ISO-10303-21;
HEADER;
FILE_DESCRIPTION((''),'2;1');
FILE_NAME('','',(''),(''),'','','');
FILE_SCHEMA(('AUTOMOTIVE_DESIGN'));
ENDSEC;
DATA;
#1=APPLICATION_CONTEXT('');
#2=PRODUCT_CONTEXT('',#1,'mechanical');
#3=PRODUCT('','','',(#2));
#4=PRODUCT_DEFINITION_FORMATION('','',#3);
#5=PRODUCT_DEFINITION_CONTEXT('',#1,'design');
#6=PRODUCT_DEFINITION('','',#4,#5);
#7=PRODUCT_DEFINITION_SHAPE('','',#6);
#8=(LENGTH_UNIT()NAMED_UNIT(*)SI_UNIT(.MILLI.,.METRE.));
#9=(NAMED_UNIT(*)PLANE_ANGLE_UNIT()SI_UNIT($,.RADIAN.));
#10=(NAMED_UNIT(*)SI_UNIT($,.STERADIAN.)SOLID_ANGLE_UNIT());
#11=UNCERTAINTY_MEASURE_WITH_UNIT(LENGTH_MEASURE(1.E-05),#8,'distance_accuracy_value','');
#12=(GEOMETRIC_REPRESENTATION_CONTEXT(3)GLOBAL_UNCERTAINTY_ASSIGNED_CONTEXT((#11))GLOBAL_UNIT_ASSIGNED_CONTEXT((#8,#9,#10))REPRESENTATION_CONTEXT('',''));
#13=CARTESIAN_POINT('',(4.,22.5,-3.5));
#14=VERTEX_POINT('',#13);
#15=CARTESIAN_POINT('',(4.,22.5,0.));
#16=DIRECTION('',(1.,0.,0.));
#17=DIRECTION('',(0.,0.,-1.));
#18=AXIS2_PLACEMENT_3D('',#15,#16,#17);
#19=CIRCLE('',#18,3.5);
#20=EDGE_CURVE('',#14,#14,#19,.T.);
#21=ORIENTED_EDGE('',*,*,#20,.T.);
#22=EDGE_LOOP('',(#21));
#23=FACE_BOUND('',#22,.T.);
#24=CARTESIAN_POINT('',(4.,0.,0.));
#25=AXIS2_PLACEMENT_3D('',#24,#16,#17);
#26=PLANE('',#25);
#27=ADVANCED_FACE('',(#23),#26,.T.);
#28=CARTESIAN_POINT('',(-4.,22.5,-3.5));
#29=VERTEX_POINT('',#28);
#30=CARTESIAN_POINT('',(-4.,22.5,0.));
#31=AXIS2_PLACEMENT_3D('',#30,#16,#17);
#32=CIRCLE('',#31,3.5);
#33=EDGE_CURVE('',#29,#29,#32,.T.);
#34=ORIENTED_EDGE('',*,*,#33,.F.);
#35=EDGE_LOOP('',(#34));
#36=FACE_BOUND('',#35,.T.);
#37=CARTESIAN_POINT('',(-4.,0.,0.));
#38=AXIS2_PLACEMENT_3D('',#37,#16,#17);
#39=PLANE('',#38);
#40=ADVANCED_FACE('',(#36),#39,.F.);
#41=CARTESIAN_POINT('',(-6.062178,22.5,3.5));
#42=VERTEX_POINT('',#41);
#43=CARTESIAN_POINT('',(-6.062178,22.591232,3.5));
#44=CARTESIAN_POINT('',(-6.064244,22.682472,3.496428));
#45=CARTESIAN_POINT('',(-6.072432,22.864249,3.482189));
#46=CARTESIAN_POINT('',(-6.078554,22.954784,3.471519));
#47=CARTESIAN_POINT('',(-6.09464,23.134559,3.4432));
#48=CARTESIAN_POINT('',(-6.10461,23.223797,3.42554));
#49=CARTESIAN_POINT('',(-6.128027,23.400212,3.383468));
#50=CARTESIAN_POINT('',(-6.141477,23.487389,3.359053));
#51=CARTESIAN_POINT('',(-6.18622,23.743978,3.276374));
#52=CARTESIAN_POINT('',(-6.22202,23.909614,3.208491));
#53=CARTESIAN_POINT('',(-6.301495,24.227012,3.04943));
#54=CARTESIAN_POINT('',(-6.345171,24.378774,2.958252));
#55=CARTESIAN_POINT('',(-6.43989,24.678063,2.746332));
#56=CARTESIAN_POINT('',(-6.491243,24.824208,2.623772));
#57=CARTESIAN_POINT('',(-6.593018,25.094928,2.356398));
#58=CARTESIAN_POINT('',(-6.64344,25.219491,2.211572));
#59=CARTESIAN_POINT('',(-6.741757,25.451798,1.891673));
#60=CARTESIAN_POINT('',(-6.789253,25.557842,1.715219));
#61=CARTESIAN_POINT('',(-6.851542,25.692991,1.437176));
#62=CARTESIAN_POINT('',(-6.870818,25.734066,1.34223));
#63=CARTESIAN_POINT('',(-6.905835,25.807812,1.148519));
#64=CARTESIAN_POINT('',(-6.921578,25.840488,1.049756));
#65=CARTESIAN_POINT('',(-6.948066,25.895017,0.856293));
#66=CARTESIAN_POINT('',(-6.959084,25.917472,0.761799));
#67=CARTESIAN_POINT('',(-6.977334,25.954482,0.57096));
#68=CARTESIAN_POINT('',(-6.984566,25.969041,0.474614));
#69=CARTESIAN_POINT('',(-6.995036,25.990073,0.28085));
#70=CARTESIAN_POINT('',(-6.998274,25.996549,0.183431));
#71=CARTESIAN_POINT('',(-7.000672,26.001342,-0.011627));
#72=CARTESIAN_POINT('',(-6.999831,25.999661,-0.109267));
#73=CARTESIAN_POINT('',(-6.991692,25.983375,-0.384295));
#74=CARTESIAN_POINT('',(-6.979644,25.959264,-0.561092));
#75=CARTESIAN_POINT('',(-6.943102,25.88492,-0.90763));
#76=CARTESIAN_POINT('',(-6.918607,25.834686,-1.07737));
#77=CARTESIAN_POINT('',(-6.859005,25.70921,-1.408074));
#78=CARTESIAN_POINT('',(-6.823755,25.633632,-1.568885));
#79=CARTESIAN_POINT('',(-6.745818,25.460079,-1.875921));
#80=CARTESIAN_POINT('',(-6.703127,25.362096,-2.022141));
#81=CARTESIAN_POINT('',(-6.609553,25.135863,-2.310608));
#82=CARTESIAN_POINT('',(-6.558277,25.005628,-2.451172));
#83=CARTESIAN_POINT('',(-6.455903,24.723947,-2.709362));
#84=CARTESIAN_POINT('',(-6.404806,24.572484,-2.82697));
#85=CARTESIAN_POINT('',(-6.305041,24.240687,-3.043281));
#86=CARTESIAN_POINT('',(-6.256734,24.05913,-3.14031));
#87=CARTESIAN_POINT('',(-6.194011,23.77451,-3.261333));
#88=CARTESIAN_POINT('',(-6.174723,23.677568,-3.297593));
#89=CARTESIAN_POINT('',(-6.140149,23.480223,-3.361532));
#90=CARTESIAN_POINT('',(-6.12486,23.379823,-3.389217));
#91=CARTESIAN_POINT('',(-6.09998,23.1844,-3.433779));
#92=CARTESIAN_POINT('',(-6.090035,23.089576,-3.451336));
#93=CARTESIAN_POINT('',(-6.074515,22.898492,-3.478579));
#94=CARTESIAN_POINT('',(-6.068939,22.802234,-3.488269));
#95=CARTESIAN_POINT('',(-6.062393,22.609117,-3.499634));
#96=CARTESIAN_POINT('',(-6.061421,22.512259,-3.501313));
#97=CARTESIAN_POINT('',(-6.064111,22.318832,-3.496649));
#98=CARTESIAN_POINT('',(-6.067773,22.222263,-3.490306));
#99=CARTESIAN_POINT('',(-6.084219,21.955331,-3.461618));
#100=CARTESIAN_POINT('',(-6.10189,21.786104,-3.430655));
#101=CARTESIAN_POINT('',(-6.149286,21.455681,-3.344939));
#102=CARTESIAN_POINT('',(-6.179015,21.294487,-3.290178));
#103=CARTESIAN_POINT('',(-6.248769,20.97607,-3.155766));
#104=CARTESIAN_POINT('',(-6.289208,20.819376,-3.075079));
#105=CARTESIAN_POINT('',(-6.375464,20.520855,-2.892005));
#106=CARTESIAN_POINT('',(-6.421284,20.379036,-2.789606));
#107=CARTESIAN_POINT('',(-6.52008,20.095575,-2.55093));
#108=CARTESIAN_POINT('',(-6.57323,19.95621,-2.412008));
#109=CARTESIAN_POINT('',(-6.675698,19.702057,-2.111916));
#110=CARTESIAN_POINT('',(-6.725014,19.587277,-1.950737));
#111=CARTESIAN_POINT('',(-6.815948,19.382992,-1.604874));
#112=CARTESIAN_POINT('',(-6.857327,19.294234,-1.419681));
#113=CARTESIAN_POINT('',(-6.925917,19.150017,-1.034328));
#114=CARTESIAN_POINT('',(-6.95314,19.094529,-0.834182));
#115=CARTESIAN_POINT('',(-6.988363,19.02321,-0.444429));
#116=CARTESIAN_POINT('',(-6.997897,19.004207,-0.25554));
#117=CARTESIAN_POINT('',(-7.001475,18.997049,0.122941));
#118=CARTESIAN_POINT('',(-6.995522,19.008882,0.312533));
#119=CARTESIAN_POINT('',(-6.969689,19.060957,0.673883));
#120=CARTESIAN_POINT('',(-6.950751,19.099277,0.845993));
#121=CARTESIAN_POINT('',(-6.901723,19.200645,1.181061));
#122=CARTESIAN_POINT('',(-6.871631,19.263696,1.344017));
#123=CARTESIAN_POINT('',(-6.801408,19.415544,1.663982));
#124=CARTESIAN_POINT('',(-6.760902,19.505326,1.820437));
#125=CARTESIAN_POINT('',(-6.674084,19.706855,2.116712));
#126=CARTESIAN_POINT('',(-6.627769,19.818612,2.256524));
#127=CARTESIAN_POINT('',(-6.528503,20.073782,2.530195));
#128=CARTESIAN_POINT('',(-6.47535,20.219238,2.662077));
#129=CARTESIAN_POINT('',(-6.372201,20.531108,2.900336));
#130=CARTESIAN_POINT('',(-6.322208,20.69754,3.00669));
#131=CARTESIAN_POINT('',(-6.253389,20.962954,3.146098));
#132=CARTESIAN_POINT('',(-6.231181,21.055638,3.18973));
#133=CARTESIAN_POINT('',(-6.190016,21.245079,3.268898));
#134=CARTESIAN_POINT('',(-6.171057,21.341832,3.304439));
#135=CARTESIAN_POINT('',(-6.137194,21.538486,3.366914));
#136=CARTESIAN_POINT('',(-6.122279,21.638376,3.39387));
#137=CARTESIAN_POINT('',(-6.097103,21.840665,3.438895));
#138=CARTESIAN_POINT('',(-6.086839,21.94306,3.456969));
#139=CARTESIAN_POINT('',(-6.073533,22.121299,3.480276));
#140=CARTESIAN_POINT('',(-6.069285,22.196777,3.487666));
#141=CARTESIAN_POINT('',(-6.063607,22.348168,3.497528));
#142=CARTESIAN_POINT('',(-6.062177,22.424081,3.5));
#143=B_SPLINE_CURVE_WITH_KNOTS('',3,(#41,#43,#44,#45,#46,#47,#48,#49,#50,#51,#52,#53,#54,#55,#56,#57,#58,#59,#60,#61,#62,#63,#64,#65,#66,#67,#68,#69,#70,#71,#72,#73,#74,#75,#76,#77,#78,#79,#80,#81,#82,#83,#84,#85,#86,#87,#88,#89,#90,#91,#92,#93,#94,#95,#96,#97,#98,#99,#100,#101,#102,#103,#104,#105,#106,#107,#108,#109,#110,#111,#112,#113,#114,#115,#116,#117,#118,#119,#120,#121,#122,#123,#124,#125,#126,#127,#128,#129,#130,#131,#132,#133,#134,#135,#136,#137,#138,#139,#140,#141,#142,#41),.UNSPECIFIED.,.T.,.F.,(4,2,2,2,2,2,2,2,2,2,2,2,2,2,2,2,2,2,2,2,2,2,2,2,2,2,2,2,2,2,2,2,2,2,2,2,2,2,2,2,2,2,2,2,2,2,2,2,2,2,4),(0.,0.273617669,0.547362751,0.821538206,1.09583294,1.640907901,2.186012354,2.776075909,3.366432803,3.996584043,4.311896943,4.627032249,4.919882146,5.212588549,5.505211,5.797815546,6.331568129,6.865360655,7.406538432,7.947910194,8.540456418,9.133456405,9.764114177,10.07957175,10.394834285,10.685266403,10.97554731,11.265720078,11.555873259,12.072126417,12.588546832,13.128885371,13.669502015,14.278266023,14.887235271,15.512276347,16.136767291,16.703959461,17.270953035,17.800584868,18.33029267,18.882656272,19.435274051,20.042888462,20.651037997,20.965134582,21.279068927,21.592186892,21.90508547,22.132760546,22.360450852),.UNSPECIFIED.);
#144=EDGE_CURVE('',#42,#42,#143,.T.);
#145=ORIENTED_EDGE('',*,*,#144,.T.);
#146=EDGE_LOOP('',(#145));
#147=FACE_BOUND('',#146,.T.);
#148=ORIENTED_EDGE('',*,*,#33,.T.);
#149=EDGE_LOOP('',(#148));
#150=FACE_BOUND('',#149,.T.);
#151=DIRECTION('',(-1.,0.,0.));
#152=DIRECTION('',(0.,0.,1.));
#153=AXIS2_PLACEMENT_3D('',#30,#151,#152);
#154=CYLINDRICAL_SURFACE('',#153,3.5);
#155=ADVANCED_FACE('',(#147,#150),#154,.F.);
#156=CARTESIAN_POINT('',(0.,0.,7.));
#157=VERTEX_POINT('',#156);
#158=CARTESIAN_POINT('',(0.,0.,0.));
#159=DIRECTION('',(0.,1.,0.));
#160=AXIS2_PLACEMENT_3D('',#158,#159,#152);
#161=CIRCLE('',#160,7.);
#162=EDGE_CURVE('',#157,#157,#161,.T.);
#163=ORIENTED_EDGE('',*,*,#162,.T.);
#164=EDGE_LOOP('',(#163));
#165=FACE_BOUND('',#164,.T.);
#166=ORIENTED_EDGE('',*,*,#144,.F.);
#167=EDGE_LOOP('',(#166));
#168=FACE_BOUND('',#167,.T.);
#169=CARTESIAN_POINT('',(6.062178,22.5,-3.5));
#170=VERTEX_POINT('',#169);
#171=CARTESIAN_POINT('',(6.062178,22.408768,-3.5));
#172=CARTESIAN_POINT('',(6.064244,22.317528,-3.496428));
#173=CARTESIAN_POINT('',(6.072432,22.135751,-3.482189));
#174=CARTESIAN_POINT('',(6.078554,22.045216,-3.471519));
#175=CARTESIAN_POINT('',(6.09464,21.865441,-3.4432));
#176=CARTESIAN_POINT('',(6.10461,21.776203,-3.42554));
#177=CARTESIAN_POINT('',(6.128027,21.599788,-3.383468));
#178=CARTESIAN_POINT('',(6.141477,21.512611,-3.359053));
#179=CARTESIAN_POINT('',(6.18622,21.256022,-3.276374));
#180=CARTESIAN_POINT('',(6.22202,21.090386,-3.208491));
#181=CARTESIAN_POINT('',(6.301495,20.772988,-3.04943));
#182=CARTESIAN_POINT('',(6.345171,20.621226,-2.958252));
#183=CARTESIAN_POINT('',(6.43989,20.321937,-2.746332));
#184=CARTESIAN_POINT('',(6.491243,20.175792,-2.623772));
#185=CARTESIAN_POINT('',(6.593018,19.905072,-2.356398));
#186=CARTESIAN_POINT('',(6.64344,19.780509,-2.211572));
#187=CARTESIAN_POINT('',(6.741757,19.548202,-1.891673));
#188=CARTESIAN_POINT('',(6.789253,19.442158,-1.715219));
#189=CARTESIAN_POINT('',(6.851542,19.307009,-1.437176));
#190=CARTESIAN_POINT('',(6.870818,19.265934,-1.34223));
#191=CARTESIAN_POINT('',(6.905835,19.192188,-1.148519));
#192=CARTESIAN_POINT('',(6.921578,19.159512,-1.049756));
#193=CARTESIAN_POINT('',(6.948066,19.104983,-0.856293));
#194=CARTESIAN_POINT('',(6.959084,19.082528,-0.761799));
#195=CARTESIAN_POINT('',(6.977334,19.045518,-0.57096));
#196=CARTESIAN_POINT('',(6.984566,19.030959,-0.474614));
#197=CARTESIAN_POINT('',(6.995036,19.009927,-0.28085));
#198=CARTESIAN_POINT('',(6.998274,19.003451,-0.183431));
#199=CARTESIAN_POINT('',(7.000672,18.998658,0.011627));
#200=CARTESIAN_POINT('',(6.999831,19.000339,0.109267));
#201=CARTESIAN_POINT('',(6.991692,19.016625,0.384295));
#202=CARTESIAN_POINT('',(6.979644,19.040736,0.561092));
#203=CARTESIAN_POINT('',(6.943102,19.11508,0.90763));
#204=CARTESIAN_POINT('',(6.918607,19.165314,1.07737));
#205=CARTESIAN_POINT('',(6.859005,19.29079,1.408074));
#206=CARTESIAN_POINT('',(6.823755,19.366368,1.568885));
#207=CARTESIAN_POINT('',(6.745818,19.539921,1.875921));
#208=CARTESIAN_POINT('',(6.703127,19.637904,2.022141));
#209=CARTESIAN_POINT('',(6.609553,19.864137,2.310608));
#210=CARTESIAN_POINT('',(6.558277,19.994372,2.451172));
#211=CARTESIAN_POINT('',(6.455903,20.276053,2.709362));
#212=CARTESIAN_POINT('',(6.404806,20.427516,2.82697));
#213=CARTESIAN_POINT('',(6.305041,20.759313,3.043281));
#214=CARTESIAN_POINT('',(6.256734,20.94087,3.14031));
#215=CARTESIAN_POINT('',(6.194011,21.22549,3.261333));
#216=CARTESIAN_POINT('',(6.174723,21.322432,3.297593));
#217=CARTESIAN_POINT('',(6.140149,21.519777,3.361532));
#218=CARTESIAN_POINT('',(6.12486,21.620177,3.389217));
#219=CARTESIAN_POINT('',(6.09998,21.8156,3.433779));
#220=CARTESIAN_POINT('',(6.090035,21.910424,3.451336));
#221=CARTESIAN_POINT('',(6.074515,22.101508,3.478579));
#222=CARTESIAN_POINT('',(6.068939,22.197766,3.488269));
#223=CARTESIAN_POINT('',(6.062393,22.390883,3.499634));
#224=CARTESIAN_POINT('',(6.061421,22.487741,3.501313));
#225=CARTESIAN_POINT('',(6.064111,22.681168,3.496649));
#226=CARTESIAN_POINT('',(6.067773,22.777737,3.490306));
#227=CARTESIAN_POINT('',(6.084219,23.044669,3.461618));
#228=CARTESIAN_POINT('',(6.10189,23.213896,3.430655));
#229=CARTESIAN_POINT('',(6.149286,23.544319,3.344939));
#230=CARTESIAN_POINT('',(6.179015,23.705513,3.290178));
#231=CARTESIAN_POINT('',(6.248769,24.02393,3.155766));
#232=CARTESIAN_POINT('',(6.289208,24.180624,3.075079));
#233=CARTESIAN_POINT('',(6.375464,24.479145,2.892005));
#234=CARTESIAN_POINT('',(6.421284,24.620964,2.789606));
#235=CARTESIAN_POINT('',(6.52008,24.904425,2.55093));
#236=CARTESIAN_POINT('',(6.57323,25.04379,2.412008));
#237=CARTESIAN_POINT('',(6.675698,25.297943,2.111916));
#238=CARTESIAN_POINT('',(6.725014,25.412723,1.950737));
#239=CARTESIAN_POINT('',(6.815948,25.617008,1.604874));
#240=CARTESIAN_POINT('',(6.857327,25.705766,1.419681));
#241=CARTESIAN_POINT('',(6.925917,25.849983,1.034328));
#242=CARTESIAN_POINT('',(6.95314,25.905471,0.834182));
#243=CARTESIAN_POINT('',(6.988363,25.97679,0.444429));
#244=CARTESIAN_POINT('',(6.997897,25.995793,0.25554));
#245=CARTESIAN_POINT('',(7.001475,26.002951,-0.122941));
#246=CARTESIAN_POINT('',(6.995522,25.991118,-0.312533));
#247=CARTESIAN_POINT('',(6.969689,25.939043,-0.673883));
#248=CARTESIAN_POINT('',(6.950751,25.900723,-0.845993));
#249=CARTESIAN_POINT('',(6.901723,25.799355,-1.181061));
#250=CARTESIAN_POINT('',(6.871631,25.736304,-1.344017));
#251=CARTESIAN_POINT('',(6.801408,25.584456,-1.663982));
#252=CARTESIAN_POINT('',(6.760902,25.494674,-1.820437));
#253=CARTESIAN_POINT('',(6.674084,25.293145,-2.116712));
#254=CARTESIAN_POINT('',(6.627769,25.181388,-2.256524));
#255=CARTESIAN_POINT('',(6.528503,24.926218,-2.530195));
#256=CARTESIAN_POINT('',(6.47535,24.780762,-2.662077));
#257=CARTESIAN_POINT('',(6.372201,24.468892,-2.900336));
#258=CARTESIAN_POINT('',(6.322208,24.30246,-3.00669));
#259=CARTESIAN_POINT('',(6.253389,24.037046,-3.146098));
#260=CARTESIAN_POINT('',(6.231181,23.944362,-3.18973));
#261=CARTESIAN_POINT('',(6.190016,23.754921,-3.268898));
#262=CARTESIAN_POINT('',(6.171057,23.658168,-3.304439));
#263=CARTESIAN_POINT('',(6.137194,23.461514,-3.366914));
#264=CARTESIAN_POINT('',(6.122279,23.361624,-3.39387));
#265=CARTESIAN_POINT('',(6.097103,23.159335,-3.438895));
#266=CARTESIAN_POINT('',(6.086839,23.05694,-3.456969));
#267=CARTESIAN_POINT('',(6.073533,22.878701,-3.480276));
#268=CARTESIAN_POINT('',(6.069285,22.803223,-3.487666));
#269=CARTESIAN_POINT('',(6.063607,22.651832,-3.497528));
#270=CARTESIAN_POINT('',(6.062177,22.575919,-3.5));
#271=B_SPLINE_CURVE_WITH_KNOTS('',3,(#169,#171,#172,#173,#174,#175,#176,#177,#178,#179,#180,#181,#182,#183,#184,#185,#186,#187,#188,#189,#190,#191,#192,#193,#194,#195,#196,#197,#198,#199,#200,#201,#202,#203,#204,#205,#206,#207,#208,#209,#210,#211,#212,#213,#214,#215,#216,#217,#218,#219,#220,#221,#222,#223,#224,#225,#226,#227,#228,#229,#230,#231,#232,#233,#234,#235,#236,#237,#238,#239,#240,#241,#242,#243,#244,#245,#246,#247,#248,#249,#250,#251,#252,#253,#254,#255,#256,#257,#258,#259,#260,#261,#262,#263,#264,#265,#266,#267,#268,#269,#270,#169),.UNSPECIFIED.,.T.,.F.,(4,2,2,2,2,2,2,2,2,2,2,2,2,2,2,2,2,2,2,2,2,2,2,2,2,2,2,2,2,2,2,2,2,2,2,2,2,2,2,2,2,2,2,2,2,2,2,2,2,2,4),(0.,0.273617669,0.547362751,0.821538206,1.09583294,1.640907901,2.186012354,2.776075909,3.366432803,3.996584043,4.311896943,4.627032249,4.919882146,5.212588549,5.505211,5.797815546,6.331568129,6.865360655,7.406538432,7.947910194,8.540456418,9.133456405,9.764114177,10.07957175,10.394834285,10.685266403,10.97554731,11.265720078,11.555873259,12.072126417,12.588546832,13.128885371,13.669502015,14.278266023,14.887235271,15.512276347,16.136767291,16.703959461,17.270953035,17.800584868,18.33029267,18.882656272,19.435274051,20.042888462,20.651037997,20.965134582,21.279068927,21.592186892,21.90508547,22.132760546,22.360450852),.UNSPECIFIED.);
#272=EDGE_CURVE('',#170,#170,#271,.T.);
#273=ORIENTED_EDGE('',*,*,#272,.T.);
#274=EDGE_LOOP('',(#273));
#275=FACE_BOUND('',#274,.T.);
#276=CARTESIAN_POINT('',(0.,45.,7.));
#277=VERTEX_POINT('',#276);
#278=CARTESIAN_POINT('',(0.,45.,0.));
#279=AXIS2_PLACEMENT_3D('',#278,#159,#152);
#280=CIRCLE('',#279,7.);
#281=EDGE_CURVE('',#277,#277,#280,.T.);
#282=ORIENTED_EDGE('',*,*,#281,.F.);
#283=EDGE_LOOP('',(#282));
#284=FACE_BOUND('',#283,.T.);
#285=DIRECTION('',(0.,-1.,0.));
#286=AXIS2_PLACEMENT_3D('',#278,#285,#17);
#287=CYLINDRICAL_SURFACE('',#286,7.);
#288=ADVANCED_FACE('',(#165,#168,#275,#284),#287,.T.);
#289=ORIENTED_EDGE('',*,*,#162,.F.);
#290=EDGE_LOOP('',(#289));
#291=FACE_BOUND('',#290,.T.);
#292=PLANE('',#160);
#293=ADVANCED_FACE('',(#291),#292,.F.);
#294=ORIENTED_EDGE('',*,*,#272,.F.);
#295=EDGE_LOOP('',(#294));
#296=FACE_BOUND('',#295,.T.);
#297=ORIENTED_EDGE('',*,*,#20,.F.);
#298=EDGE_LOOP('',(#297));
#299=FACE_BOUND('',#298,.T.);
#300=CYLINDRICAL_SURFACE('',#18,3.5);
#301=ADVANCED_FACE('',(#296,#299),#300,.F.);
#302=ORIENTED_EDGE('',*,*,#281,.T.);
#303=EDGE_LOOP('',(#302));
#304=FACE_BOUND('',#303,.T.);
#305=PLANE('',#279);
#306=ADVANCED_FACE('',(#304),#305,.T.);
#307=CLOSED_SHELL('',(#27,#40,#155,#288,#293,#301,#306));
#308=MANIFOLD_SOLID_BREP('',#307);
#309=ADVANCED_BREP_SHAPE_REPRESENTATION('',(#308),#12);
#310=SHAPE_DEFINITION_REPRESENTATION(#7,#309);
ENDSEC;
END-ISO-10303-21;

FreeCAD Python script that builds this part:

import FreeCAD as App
import Part
import Sketcher
from FreeCAD import Vector

doc = App.newDocument("Part")
body = doc.addObject("PartDesign::Body", "Body")

sketch1 = body.newObject("Sketcher::SketchObject", "Sketch")
sketch1.AttachmentSupport = (doc.getObject("XZ_Plane"), [""])
sketch1.MapMode = "FlatFace"
sketch1.addGeometry(Part.Circle(Vector(0, 0, 0), Vector(0, 0, 1), 7), False)
sketch1.addConstraint(Sketcher.Constraint("Coincident", 0, 3, -1, 1))
sketch1.addConstraint(Sketcher.Constraint("Diameter", 0, 14.0))
pad1 = body.newObject("PartDesign::Pad", "Pad")
pad1.Profile = sketch1
pad1.Length = 45
pad1.Reversed = True

sketch2 = body.newObject("Sketcher::SketchObject", "Sketch001")
sketch2.AttachmentSupport = (doc.getObject("YZ_Plane"), [""])
sketch2.MapMode = "FlatFace"
sketch2.AttachmentOffset = App.Placement(Vector(0, 0, 15), App.Rotation())
sketch2.addGeometry(Part.Circle(Vector(22.5, 0, 0), Vector(0, 0, 1), 3.5), False)
sketch2.addConstraint(Sketcher.Constraint("PointOnObject", 0, 3, -1))
sketch2.addConstraint(Sketcher.Constraint("Diameter", 0, 7.0))
sketch2.addConstraint(Sketcher.Constraint("DistanceX", -1, 1, 0, 3, 22.5))
pocket1 = body.newObject("PartDesign::Pocket", "Pocket")
pocket1.Profile = sketch2
pocket1.Length = 11

sketch3 = body.newObject("Sketcher::SketchObject", "Sketch002")
sketch3.AttachmentSupport = (doc.getObject("YZ_Plane"), [""])
sketch3.MapMode = "FlatFace"
sketch3.AttachmentOffset = App.Placement(Vector(0, 0, -4), App.Rotation())
sketch3.addGeometry(Part.Circle(Vector(22.5, 0, 0), Vector(0, 0, 1), 3.5), False)
sketch3.addConstraint(Sketcher.Constraint("PointOnObject", 0, 3, -1))
sketch3.addConstraint(Sketcher.Constraint("Diameter", 0, 7.0))
sketch3.addConstraint(Sketcher.Constraint("DistanceX", -1, 1, 0, 3, 22.5))
pocket2 = body.newObject("PartDesign::Pocket", "Pocket001")
pocket2.Profile = sketch3
pocket2.Length = 11

doc.recompute()
